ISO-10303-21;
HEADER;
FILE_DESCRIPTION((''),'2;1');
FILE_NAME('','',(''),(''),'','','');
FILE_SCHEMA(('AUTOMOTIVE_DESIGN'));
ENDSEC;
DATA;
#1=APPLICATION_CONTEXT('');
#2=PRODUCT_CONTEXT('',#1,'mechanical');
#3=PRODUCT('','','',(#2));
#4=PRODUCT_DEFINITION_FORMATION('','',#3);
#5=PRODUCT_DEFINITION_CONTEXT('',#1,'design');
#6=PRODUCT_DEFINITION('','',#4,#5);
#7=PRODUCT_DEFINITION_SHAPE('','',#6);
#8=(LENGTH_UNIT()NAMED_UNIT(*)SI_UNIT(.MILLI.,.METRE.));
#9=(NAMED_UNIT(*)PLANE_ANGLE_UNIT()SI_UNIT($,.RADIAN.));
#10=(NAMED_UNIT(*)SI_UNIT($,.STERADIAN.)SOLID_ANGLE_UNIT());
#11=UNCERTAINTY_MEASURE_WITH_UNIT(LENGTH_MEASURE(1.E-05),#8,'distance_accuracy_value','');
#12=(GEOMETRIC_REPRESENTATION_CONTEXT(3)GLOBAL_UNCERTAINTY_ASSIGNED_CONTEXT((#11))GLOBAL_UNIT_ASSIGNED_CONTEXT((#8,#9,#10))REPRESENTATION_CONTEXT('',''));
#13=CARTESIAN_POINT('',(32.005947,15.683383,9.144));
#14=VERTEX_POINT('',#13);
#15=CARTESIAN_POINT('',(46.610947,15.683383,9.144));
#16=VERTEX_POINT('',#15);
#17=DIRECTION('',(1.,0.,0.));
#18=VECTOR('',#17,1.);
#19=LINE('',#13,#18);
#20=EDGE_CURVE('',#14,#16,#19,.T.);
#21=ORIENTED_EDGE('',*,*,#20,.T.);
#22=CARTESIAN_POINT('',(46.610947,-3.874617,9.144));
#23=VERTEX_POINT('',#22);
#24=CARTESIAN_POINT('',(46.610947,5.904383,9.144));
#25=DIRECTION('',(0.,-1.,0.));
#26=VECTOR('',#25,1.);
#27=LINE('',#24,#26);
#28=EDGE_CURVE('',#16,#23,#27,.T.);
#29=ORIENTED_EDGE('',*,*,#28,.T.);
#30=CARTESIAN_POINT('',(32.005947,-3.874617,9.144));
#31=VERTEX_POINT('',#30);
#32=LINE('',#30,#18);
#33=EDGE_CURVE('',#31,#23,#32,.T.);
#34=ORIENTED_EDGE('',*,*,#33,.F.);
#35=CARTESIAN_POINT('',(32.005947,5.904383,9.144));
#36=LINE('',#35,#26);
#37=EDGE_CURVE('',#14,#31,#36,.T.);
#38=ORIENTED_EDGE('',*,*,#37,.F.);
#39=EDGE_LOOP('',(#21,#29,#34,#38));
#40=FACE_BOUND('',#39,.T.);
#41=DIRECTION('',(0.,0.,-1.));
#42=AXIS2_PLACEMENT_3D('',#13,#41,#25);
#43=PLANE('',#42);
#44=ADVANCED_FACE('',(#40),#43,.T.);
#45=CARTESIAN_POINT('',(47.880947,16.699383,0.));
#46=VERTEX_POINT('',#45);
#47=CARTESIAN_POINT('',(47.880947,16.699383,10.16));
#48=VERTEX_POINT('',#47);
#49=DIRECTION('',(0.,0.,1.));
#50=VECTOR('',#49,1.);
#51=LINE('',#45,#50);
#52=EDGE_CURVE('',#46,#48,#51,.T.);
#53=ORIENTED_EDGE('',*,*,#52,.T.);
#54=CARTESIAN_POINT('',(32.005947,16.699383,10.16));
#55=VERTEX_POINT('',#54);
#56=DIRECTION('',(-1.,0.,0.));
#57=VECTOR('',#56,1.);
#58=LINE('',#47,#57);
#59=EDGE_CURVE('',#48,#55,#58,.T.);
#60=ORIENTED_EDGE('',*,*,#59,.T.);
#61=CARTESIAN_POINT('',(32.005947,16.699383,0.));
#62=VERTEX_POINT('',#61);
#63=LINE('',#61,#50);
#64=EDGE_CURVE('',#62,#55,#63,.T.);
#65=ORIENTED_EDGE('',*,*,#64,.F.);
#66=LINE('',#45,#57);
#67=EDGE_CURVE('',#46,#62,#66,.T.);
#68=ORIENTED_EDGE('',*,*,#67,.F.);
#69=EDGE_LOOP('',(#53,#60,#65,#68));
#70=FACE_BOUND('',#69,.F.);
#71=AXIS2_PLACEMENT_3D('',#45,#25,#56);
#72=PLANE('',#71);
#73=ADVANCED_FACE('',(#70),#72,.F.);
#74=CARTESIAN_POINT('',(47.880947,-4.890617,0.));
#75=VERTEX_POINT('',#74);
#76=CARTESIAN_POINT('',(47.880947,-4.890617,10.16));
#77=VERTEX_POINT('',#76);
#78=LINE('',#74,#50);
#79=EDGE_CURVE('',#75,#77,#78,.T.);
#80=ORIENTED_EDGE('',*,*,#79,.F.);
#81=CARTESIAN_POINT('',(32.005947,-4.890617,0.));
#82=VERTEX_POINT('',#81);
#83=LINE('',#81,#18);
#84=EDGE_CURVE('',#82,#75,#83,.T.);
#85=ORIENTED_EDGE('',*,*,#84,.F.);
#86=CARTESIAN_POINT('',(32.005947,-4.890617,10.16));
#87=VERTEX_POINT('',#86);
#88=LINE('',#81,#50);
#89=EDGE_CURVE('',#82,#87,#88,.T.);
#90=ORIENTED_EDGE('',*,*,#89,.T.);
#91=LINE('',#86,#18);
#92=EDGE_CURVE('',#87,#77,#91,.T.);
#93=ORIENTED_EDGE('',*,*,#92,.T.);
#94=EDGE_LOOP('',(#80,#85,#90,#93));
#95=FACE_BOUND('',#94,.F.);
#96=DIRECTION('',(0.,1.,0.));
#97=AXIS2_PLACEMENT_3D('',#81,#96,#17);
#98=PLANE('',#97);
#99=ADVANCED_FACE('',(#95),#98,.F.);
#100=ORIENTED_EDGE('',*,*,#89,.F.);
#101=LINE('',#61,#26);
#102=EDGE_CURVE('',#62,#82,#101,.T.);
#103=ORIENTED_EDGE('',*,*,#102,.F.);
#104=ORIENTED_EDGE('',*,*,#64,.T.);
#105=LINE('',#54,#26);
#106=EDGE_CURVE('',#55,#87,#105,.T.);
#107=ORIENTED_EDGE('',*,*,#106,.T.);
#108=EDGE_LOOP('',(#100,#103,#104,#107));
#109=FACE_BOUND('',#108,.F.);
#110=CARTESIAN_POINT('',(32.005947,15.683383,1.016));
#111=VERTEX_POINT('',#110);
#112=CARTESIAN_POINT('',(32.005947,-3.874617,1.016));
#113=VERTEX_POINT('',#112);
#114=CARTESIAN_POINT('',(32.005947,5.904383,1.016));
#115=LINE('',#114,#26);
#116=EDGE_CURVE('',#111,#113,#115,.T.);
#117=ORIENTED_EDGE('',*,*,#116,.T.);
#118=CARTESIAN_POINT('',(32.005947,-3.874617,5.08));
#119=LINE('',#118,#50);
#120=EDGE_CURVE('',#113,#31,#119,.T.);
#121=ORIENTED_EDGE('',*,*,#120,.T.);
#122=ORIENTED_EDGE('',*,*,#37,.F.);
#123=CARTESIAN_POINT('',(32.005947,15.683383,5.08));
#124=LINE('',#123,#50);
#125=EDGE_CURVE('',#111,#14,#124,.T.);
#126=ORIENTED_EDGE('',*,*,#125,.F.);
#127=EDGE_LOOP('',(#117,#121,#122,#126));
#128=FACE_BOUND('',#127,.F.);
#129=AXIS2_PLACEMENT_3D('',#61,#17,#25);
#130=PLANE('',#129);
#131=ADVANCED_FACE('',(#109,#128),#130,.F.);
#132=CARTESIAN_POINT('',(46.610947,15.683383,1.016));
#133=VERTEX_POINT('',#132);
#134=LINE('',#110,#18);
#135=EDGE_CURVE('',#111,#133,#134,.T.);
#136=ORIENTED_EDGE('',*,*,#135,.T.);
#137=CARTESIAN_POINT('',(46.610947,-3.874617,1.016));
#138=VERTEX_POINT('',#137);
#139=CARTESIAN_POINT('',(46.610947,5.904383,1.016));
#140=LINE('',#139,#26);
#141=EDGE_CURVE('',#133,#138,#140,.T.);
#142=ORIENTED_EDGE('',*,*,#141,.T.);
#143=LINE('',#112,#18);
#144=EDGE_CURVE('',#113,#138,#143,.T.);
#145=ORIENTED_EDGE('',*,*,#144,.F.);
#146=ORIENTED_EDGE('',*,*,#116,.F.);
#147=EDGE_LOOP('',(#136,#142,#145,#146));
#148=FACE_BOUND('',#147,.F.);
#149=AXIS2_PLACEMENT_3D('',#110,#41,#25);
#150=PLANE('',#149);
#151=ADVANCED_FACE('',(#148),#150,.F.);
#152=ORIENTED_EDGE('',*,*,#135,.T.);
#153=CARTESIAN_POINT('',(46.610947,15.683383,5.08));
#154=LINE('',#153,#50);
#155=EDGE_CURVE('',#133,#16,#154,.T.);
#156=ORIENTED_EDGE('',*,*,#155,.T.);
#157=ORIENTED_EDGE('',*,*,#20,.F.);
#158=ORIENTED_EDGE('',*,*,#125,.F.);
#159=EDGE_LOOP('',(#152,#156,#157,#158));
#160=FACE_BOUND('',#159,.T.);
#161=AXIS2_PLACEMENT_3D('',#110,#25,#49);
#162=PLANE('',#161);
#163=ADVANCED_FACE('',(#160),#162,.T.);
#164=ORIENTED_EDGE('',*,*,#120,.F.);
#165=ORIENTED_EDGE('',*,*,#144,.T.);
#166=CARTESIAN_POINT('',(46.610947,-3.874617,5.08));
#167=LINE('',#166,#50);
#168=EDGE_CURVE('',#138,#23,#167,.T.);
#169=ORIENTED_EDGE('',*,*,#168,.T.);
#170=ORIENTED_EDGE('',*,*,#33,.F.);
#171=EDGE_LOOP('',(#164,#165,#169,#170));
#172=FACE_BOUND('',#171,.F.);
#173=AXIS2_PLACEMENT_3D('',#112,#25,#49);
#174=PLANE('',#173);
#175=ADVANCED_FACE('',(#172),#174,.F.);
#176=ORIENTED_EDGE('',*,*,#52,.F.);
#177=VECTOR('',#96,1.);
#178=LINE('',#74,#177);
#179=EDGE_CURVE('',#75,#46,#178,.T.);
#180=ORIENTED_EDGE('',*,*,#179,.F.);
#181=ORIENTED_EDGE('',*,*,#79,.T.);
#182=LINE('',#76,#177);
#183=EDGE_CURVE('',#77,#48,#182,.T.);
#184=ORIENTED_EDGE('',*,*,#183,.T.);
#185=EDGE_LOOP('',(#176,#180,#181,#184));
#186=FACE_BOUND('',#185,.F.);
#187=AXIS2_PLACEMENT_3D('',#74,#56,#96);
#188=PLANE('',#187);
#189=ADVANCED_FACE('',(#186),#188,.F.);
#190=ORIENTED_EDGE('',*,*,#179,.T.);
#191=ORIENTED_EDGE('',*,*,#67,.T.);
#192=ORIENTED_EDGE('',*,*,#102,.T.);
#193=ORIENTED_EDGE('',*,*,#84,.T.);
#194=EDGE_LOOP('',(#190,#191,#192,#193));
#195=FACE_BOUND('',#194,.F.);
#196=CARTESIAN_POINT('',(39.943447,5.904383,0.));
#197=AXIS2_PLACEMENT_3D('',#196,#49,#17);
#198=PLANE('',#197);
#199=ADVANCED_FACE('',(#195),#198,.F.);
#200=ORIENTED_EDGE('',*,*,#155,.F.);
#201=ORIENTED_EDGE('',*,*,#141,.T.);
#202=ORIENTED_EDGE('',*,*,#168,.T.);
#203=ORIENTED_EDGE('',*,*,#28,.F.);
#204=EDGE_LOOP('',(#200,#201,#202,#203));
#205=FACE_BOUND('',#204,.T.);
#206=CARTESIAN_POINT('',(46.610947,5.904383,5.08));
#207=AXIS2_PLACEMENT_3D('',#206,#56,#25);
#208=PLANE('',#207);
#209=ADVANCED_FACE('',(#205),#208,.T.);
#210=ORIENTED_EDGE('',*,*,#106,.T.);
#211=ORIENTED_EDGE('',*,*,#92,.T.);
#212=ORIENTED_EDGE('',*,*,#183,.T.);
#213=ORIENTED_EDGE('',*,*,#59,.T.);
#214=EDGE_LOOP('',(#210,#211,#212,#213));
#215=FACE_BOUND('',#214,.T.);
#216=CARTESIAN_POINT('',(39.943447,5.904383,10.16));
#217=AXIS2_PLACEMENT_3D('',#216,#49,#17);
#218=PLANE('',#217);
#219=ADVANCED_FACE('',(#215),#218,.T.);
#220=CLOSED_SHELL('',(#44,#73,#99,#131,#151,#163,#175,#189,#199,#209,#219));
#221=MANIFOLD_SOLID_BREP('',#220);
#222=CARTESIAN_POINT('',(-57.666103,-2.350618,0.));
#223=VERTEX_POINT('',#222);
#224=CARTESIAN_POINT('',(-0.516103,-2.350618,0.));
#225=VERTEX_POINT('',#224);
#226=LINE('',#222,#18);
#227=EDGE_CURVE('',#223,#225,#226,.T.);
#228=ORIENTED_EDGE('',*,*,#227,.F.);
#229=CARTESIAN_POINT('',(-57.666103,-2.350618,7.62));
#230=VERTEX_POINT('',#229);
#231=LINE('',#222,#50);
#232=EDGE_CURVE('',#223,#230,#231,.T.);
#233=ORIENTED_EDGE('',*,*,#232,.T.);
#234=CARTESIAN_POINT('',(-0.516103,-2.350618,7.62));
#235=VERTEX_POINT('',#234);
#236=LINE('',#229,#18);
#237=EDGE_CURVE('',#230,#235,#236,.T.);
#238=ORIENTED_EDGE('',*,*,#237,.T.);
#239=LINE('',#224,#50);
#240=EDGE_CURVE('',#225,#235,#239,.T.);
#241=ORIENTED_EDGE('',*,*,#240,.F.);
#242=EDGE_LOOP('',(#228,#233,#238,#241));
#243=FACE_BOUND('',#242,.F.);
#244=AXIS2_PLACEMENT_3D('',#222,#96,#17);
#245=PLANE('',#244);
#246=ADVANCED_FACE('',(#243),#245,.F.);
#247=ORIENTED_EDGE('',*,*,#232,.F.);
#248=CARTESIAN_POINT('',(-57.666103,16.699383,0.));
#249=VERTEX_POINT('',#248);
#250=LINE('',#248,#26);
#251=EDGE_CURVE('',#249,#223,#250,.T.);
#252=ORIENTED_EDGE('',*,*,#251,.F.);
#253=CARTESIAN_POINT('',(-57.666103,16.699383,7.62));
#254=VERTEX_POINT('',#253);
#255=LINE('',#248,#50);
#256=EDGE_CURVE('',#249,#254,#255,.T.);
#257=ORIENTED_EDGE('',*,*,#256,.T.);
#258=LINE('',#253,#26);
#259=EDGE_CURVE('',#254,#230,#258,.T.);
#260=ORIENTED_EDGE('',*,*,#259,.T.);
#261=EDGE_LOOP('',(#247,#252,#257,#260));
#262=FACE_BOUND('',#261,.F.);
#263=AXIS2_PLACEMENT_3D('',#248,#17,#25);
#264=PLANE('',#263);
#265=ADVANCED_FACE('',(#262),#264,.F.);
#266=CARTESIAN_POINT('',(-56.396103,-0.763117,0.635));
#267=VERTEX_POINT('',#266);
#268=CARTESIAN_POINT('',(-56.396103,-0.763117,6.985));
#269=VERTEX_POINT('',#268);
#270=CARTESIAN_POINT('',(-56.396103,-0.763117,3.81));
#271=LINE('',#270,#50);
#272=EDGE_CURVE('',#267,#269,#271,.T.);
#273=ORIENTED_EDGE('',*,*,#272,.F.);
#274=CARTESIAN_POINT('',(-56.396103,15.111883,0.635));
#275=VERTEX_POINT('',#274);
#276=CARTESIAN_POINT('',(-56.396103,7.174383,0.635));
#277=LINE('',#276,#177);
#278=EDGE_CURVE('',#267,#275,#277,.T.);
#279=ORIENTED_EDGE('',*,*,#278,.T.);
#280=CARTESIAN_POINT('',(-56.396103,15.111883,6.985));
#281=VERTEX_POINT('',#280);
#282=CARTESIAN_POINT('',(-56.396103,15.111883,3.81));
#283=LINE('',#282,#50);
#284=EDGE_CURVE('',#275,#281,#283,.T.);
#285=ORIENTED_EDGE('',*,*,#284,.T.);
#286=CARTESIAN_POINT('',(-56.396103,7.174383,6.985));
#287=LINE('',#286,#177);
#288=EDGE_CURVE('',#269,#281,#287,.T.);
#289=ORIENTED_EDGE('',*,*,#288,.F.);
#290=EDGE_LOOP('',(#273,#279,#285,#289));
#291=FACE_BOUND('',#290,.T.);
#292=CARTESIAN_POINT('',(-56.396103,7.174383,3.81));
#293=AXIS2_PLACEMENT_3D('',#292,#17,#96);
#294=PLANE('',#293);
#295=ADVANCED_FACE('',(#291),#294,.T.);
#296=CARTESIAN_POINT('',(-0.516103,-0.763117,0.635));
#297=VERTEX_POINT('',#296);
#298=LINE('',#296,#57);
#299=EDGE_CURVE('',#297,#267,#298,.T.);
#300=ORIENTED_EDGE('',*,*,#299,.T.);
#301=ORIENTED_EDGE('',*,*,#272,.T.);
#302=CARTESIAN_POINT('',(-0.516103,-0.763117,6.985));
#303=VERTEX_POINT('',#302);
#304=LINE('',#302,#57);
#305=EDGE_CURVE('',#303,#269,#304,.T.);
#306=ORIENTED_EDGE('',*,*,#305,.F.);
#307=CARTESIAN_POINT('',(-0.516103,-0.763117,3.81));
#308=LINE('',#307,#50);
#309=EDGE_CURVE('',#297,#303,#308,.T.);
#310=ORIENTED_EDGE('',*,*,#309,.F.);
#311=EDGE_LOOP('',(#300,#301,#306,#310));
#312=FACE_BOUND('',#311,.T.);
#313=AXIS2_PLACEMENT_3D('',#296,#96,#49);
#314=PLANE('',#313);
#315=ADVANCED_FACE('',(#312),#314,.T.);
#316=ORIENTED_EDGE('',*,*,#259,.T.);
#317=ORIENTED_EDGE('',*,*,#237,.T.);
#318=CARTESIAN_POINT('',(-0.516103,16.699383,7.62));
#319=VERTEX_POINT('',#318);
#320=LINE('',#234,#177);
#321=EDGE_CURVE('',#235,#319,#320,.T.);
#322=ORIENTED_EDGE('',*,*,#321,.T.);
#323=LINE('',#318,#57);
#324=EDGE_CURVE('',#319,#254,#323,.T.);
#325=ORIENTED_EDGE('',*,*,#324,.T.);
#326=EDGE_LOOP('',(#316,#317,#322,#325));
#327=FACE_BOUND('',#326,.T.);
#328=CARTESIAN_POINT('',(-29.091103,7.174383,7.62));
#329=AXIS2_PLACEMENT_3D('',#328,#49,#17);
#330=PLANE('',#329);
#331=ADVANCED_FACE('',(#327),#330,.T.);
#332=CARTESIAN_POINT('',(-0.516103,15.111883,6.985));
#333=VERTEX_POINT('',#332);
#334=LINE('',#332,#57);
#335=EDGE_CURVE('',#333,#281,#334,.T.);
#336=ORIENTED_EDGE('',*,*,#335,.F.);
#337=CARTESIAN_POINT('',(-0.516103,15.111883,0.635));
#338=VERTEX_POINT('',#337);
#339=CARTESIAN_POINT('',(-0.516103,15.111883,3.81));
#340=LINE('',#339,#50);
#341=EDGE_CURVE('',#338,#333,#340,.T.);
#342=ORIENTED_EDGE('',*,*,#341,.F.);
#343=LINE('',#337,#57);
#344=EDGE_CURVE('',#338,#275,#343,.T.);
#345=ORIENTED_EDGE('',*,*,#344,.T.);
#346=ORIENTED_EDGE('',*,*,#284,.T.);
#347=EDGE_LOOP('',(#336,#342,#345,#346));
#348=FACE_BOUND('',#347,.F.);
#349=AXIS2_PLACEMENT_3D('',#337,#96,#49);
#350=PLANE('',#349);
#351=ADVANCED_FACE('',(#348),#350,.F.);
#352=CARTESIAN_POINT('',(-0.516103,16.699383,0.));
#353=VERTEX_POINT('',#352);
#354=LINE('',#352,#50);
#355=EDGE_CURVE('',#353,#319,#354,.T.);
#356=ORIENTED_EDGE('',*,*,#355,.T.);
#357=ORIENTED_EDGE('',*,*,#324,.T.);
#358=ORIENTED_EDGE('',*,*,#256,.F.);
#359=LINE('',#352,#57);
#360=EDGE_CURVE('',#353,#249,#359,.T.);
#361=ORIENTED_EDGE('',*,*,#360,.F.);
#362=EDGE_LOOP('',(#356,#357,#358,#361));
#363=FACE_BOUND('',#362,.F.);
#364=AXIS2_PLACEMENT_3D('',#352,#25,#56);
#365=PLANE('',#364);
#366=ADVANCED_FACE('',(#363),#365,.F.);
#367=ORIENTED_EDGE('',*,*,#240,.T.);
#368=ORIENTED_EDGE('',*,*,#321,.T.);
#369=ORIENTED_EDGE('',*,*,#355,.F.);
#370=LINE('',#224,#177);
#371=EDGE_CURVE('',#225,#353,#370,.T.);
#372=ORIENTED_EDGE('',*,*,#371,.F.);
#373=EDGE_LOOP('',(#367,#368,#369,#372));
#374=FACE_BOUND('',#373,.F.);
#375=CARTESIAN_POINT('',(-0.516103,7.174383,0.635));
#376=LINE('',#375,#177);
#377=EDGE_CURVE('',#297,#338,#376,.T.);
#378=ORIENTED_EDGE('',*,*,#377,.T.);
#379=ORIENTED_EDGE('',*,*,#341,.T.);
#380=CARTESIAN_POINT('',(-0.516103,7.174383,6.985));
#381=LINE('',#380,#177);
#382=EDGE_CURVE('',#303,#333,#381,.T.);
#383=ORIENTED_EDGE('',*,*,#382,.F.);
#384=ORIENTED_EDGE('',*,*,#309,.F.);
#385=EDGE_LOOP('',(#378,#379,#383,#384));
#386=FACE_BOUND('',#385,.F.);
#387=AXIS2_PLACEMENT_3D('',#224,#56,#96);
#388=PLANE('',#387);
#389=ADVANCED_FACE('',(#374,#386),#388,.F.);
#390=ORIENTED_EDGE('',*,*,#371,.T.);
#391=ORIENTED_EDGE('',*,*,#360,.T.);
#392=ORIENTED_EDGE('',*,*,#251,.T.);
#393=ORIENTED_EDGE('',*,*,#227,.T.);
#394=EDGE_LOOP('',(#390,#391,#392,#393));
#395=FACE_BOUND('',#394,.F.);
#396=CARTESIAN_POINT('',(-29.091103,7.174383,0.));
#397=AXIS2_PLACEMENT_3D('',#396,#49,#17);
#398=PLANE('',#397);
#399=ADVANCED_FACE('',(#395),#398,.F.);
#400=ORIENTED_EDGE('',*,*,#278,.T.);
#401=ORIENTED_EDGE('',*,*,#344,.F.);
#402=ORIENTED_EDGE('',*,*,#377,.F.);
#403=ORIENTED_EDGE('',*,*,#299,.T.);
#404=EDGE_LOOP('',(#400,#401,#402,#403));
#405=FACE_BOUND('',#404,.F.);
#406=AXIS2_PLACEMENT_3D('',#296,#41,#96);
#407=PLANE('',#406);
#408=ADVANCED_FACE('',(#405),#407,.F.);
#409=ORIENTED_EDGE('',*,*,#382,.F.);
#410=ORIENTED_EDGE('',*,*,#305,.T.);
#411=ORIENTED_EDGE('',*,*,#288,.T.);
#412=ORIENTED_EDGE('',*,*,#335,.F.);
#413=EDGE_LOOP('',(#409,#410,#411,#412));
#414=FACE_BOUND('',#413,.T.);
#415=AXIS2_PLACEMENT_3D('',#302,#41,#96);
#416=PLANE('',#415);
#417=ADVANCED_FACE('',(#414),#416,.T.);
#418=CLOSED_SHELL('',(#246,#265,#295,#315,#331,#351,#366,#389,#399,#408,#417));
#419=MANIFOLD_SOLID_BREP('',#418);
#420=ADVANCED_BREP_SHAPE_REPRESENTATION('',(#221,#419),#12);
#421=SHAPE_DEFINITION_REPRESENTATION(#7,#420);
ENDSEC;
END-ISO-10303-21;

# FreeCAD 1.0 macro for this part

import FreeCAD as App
import Part
import Sketcher
from FreeCAD import Vector
Q = App.Units.Quantity


def add_polygon(sketch, points):
    """Adds a closed chain of lines whose ends are joined by coincident constraints."""
    first, n = sketch.GeometryCount, len(points)
    for a, b in zip(points, points[1:] + points[:1]):
        sketch.addGeometry(Part.LineSegment(App.Vector(*a, 0), App.Vector(*b, 0)), False)
    for i in range(n):
        sketch.addConstraint(Sketcher.Constraint("Coincident", first + i, 2, first + (i + 1) % n, 1))

doc = App.newDocument("Part")
params = doc.addObject("Spreadsheet::Sheet", "Params")
for row, (alias, value) in enumerate([
    ("sketch1_width", "2.25 in"),
    ("sketch1_height", "0.75 in"),
    ("pad1_length", "0.3 in"),
    ("sketch2_height", "0.25 in"),
    ("sketch2_width", "0.625 in"),
    ("pocket1_length", "2.2 in"),
    ("sketch3_height", "0.85 in"),
    ("sketch3_width", "0.625 in"),
    ("pad2_length", "0.4 in"),
    ("sketch4_width", "0.77 in"),
    ("sketch4_height", "0.32 in"),
    ("pocket2_length", "0.575 in"),
], start=1):
    params.set(f"A{row}", alias)
    params.set(f"B{row}", "=" + value)
    params.setAlias(f"B{row}", alias)

body = doc.addObject("PartDesign::Body", "Body")

# Sketch on XY plane
sketch1 = body.newObject("Sketcher::SketchObject", "Sketch")
sketch1.AttachmentSupport = (doc.getObject("XY_Plane"), [""])
sketch1.MapMode = "FlatFace"
add_polygon(sketch1, [(-1, 17), (-58, 17), (-58, -2), (-1, -2)])  # lines 0-3
sketch1.addConstraint([
    Sketcher.Constraint("Horizontal", 0),
    Sketcher.Constraint("Vertical", 1),
    Sketcher.Constraint("Horizontal", 2),
    Sketcher.Constraint("Vertical", 3),
    Sketcher.Constraint("DistanceX", 0, 2, 0, 1, Q("2.25 in")),
    Sketcher.Constraint("DistanceY", 1, 2, 1, 1, Q("0.75 in")),
    Sketcher.Constraint("DistanceX", 0, 2, -1, 1, Q("57.666103 mm")),
    Sketcher.Constraint("DistanceY", -1, 1, 0, 2, Q("16.699383 mm")),
])
sketch1.setExpression("Constraints[8]", "Params.sketch1_width")
sketch1.setExpression("Constraints[9]", "Params.sketch1_height")
pad1 = body.newObject("PartDesign::Pad", "Pad")
pad1.Profile = sketch1
pad1.setExpression("Length", "Params.pad1_length")

# Sketch on YZ plane
sketch2 = body.newObject("Sketcher::SketchObject", "Sketch001")
sketch2.AttachmentSupport = (doc.getObject("YZ_Plane"), [""])
sketch2.MapMode = "FlatFace"
sketch2.AttachmentOffset = App.Placement(Vector(0, 0, -0.516103), App.Rotation())
add_polygon(sketch2, [(-1, 7), (-1, 1), (15, 1), (15, 7)])  # lines 0-3
sketch2.addConstraint([
    Sketcher.Constraint("Vertical", 0),
    Sketcher.Constraint("Horizontal", 1),
    Sketcher.Constraint("Vertical", 2),
    Sketcher.Constraint("Horizontal", 3),
    Sketcher.Constraint("DistanceY", 0, 2, 0, 1, Q("0.25 in")),
    Sketcher.Constraint("DistanceX", 1, 1, 1, 2, Q("0.625 in")),
    Sketcher.Constraint("DistanceY", -1, 1, 0, 2, Q("0.025 in")),
    Sketcher.Constraint("DistanceX", 0, 2, -1, 1, Q("0.763117 mm")),
])
sketch2.setExpression("Constraints[8]", "Params.sketch2_height")
sketch2.setExpression("Constraints[9]", "Params.sketch2_width")
pocket1 = body.newObject("PartDesign::Pocket", "Pocket")
pocket1.Profile = sketch2
pocket1.setExpression("Length", "Params.pocket1_length")
body2 = doc.addObject("PartDesign::Body", "Body001")

# Sketch on XY plane
sketch3 = body2.newObject("Sketcher::SketchObject", "Sketch002")
sketch3.AttachmentSupport = (doc.getObject("XY_Plane001"), [""])
sketch3.MapMode = "FlatFace"
add_polygon(sketch3, [(48, -5), (48, 17), (32, 17), (32, -5)])  # lines 0-3
sketch3.addConstraint([
    Sketcher.Constraint("Vertical", 0),
    Sketcher.Constraint("Horizontal", 1),
    Sketcher.Constraint("Vertical", 2),
    Sketcher.Constraint("Horizontal", 3),
    Sketcher.Constraint("DistanceY", 0, 1, 0, 2, Q("0.85 in")),
    Sketcher.Constraint("DistanceX", 1, 2, 1, 1, Q("0.625 in")),
    Sketcher.Constraint("DistanceX", -1, 1, 0, 2, Q("47.880947 mm")),
    Sketcher.Constraint("DistanceY", -1, 1, 0, 2, Q("16.699383 mm")),
])
sketch3.setExpression("Constraints[8]", "Params.sketch3_height")
sketch3.setExpression("Constraints[9]", "Params.sketch3_width")
pad2 = body2.newObject("PartDesign::Pad", "Pad001")
pad2.Profile = sketch3
pad2.setExpression("Length", "Params.pad2_length")

# Sketch on YZ plane
sketch4 = body2.newObject("Sketcher::SketchObject", "Sketch003")
sketch4.AttachmentSupport = (doc.getObject("YZ_Plane001"), [""])
sketch4.MapMode = "FlatFace"
sketch4.AttachmentOffset = App.Placement(Vector(0, 0, 32.005947), App.Rotation())
add_polygon(sketch4, [(16, 9), (16, 1), (-4, 1), (-4, 9)])  # lines 0-3
sketch4.addConstraint([
    Sketcher.Constraint("Vertical", 0),
    Sketcher.Constraint("Horizontal", 1),
    Sketcher.Constraint("Vertical", 2),
    Sketcher.Constraint("Horizontal", 3),
    Sketcher.Constraint("DistanceX", 1, 2, 1, 1, Q("0.77 in")),
    Sketcher.Constraint("DistanceY", 0, 2, 0, 1, Q("0.32 in")),
    Sketcher.Constraint("DistanceY", -1, 1, 0, 2, Q("0.04 in")),
    Sketcher.Constraint("DistanceX", -1, 1, 0, 2, Q("15.683383 mm")),
])
sketch4.setExpression("Constraints[8]", "Params.sketch4_width")
sketch4.setExpression("Constraints[9]", "Params.sketch4_height")
pocket2 = body2.newObject("PartDesign::Pocket", "Pocket001")
pocket2.Profile = sketch4
pocket2.setExpression("Length", "Params.pocket2_length")
pocket2.Reversed = True

doc.recompute()
